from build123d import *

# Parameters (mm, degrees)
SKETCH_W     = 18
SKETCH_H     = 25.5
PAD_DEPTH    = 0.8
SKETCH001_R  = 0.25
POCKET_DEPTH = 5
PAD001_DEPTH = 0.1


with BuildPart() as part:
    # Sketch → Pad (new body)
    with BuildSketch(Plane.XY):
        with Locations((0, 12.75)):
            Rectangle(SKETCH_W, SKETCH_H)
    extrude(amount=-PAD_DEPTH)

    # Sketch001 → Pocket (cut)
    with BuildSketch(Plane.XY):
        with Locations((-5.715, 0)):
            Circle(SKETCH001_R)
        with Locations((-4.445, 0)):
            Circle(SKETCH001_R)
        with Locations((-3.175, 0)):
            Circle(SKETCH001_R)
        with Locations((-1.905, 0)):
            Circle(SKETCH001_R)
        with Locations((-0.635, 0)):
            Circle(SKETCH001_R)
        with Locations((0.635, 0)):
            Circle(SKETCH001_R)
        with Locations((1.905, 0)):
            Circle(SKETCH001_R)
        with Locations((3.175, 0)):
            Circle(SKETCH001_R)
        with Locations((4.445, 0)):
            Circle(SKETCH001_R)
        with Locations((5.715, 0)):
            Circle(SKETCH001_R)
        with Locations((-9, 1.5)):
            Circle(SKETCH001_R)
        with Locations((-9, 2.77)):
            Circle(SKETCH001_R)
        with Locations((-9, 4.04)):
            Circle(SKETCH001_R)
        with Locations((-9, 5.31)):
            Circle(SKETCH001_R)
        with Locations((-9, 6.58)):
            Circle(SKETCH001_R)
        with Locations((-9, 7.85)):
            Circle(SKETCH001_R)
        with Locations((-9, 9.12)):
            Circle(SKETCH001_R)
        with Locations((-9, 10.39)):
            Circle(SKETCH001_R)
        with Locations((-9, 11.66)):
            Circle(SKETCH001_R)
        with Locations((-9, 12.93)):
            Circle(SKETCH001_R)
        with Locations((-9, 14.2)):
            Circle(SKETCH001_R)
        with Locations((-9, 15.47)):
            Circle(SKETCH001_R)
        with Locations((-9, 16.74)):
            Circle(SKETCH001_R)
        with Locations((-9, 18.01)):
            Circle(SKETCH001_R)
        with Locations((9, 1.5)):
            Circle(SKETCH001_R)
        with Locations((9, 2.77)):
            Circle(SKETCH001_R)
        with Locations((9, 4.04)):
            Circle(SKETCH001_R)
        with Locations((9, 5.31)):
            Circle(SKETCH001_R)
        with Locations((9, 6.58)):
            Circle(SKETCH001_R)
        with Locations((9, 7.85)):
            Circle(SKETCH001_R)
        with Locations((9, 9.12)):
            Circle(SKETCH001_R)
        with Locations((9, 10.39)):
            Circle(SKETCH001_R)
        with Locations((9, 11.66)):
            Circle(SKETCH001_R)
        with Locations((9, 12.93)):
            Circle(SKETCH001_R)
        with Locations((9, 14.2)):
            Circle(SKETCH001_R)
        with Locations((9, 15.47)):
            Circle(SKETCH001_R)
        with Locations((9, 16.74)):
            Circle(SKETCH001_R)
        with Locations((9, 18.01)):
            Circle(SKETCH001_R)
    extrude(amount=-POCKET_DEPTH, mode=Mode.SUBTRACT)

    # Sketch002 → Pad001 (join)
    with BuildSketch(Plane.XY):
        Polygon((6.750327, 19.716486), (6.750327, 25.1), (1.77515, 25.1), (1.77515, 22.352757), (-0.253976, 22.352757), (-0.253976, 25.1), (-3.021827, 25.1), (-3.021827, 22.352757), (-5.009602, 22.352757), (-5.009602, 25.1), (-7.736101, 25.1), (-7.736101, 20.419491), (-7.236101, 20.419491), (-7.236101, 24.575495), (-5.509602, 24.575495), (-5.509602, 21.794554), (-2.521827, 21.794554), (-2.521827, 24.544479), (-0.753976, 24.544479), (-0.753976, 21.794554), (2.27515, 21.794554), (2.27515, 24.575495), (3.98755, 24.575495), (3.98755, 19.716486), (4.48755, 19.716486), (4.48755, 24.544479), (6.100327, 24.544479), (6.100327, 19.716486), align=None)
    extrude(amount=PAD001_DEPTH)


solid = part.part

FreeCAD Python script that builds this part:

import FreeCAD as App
import Part
import Sketcher
from FreeCAD import Vector
Q = App.Units.Quantity


def add_polygon(sketch, points):
    """Adds a closed chain of lines whose ends are joined by coincident constraints."""
    first, n = sketch.GeometryCount, len(points)
    for a, b in zip(points, points[1:] + points[:1]):
        sketch.addGeometry(Part.LineSegment(App.Vector(*a, 0), App.Vector(*b, 0)), False)
    for i in range(n):
        sketch.addConstraint(Sketcher.Constraint("Coincident", first + i, 2, first + (i + 1) % n, 1))

doc = App.newDocument("Part")
body = doc.addObject("PartDesign::Body", "Body")

sketch1 = body.newObject("Sketcher::SketchObject", "Sketch")
sketch1.AttachmentSupport = (doc.getObject("XY_Plane"), [""])
sketch1.MapMode = "FlatFace"
add_polygon(sketch1, [(-9, 26), (-9, 0), (9, 0), (9, 26)])
sketch1.addConstraint([
    Sketcher.Constraint("Vertical", 0),
    Sketcher.Constraint("Horizontal", 1),
    Sketcher.Constraint("Vertical", 2),
    Sketcher.Constraint("Horizontal", 3),
    Sketcher.Constraint("Symmetric", 0, 2, 1, 2, -1, 1),
    Sketcher.Constraint("DistanceX", 1, 1, 1, 2, Q("18 mm")),
    Sketcher.Constraint("DistanceY", 0, 2, 0, 1, Q("25.5 mm")),
])
pad1 = body.newObject("PartDesign::Pad", "Pad")
pad1.Profile = sketch1
pad1.Length = 0.8
pad1.Reversed = True

sketch2 = body.newObject("Sketcher::SketchObject", "Sketch001")
sketch2.AttachmentSupport = (doc.getObject("XY_Plane"), [""])
sketch2.MapMode = "FlatFace"
sketch2.addGeometry([
    Part.Circle(Vector(-5.71, 0, 0), Vector(0, 0, 1), 0.25),
    Part.Circle(Vector(-4.45, 0, 0), Vector(0, 0, 1), 0.25),
    Part.Circle(Vector(-3.17, 0, 0), Vector(0, 0, 1), 0.25),
    Part.Circle(Vector(-1.91, 0, 0), Vector(0, 0, 1), 0.25),
    Part.Circle(Vector(-0.64, 0, 0), Vector(0, 0, 1), 0.25),
    Part.Circle(Vector(0.64, 0, 0), Vector(0, 0, 1), 0.25),
    Part.Circle(Vector(1.91, 0, 0), Vector(0, 0, 1), 0.25),
    Part.Circle(Vector(3.17, 0, 0), Vector(0, 0, 1), 0.25),
    Part.Circle(Vector(4.45, 0, 0), Vector(0, 0, 1), 0.25),
    Part.Circle(Vector(5.71, 0, 0), Vector(0, 0, 1), 0.25),
    Part.Circle(Vector(-9, 1.5, 0), Vector(0, 0, 1), 0.25),
    Part.Circle(Vector(-9, 2.77, 0), Vector(0, 0, 1), 0.25),
    Part.Circle(Vector(-9, 4.04, 0), Vector(0, 0, 1), 0.25),
    Part.Circle(Vector(-9, 5.31, 0), Vector(0, 0, 1), 0.25),
    Part.Circle(Vector(-9, 6.58, 0), Vector(0, 0, 1), 0.25),
    Part.Circle(Vector(-9, 7.85, 0), Vector(0, 0, 1), 0.25),
    Part.Circle(Vector(-9, 9.12, 0), Vector(0, 0, 1), 0.25),
    Part.Circle(Vector(-9, 10.39, 0), Vector(0, 0, 1), 0.25),
    Part.Circle(Vector(-9, 11.66, 0), Vector(0, 0, 1), 0.25),
    Part.Circle(Vector(-9, 12.93, 0), Vector(0, 0, 1), 0.25),
    Part.Circle(Vector(-9, 14.2, 0), Vector(0, 0, 1), 0.25),
    Part.Circle(Vector(-9, 15.47, 0), Vector(0, 0, 1), 0.25),
    Part.Circle(Vector(-9, 16.74, 0), Vector(0, 0, 1), 0.25),
    Part.Circle(Vector(-9, 18.01, 0), Vector(0, 0, 1), 0.25),
    Part.Circle(Vector(9, 1.5, 0), Vector(0, 0, 1), 0.25),
    Part.Circle(Vector(9, 2.77, 0), Vector(0, 0, 1), 0.25),
    Part.Circle(Vector(9, 4.04, 0), Vector(0, 0, 1), 0.25),
    Part.Circle(Vector(9, 5.31, 0), Vector(0, 0, 1), 0.25),
    Part.Circle(Vector(9, 6.58, 0), Vector(0, 0, 1), 0.25),
    Part.Circle(Vector(9, 7.85, 0), Vector(0, 0, 1), 0.25),
    Part.Circle(Vector(9, 9.12, 0), Vector(0, 0, 1), 0.25),
    Part.Circle(Vector(9, 10.39, 0), Vector(0, 0, 1), 0.25),
    Part.Circle(Vector(9, 11.66, 0), Vector(0, 0, 1), 0.25),
    Part.Circle(Vector(9, 12.93, 0), Vector(0, 0, 1), 0.25),
    Part.Circle(Vector(9, 14.2, 0), Vector(0, 0, 1), 0.25),
    Part.Circle(Vector(9, 15.47, 0), Vector(0, 0, 1), 0.25),
    Part.Circle(Vector(9, 16.74, 0), Vector(0, 0, 1), 0.25),
    Part.Circle(Vector(9, 18.01, 0), Vector(0, 0, 1), 0.25),
], False)
sketch2.addConstraint([
    Sketcher.Constraint("Equal", 0, 1),
    Sketcher.Constraint("Equal", 1, 2),
    Sketcher.Constraint("Equal", 2, 3),
    Sketcher.Constraint("Equal", 3, 4),
    Sketcher.Constraint("Equal", 4, 5),
    Sketcher.Constraint("Equal", 5, 6),
    Sketcher.Constraint("Equal", 6, 7),
    Sketcher.Constraint("Equal", 7, 8),
    Sketcher.Constraint("Equal", 8, 9),
    Sketcher.Constraint("Equal", 9, 10),
    Sketcher.Constraint("Equal", 10, 11),
    Sketcher.Constraint("Equal", 11, 12),
    Sketcher.Constraint("Equal", 12, 13),
    Sketcher.Constraint("Equal", 13, 14),
    Sketcher.Constraint("Equal", 14, 15),
    Sketcher.Constraint("Equal", 15, 16),
    Sketcher.Constraint("Equal", 16, 17),
    Sketcher.Constraint("Equal", 17, 18),
    Sketcher.Constraint("Equal", 18, 19),
    Sketcher.Constraint("Equal", 19, 20),
    Sketcher.Constraint("Equal", 20, 21),
    Sketcher.Constraint("Equal", 21, 22),
    Sketcher.Constraint("Equal", 22, 23),
    Sketcher.Constraint("Equal", 23, 24),
    Sketcher.Constraint("Equal", 24, 25),
    Sketcher.Constraint("Equal", 25, 26),
    Sketcher.Constraint("Equal", 26, 27),
    Sketcher.Constraint("Equal", 27, 28),
    Sketcher.Constraint("Equal", 28, 29),
    Sketcher.Constraint("Equal", 29, 30),
    Sketcher.Constraint("Equal", 30, 31),
    Sketcher.Constraint("Equal", 31, 32),
    Sketcher.Constraint("Equal", 32, 33),
    Sketcher.Constraint("Equal", 33, 34),
    Sketcher.Constraint("Equal", 34, 35),
    Sketcher.Constraint("Equal", 35, 36),
    Sketcher.Constraint("Equal", 36, 37),
    Sketcher.Constraint("Symmetric", 4, 3, 5, 3, -1, 1),
    Sketcher.Constraint("Symmetric", 3, 3, 6, 3, -1, 1),
    Sketcher.Constraint("Symmetric", 2, 3, 7, 3, -1, 1),
    Sketcher.Constraint("Symmetric", 1, 3, 8, 3, -1, 1),
    Sketcher.Constraint("Symmetric", 0, 3, 9, 3, -1, 1),
    Sketcher.Constraint("Symmetric", 10, 3, 24, 3, -2),
    Sketcher.Constraint("Symmetric", 11, 3, 25, 3, -2),
    Sketcher.Constraint("Symmetric", 12, 3, 26, 3, -2),
    Sketcher.Constraint("Symmetric", 13, 3, 27, 3, -2),
    Sketcher.Constraint("Symmetric", 14, 3, 28, 3, -2),
    Sketcher.Constraint("Symmetric", 15, 3, 29, 3, -2),
    Sketcher.Constraint("Symmetric", 16, 3, 30, 3, -2),
    Sketcher.Constraint("Symmetric", 17, 3, 31, 3, -2),
    Sketcher.Constraint("Symmetric", 18, 3, 32, 3, -2),
    Sketcher.Constraint("Symmetric", 19, 3, 33, 3, -2),
    Sketcher.Constraint("Symmetric", 20, 3, 34, 3, -2),
    Sketcher.Constraint("Symmetric", 21, 3, 35, 3, -2),
    Sketcher.Constraint("Symmetric", 22, 3, 36, 3, -2),
    Sketcher.Constraint("Symmetric", 23, 3, 37, 3, -2),
    Sketcher.Constraint("PointOnObject", 0, 3, -1),
    Sketcher.Constraint("PointOnObject", 1, 3, -1),
    Sketcher.Constraint("PointOnObject", 2, 3, -1),
    Sketcher.Constraint("PointOnObject", 3, 3, -1),
    Sketcher.Constraint("PointOnObject", 4, 3, -1),
    Sketcher.Constraint("Vertical", 10, 3, 11, 3),
    Sketcher.Constraint("Vertical", 11, 3, 12, 3),
    Sketcher.Constraint("Vertical", 12, 3, 13, 3),
    Sketcher.Constraint("Vertical", 13, 3, 14, 3),
    Sketcher.Constraint("Vertical", 14, 3, 15, 3),
    Sketcher.Constraint("Vertical", 15, 3, 16, 3),
    Sketcher.Constraint("Vertical", 16, 3, 17, 3),
    Sketcher.Constraint("Vertical", 17, 3, 18, 3),
    Sketcher.Constraint("Vertical", 18, 3, 19, 3),
    Sketcher.Constraint("Vertical", 19, 3, 20, 3),
    Sketcher.Constraint("Vertical", 20, 3, 21, 3),
    Sketcher.Constraint("Vertical", 21, 3, 22, 3),
    Sketcher.Constraint("Vertical", 22, 3, 23, 3),
    Sketcher.Constraint("Diameter", 0, Q("0.5 mm")),
    Sketcher.Constraint("DistanceX", 10, 3, -1, 1, Q("9 mm")),
    Sketcher.Constraint("DistanceY", -1, 1, 10, 3, Q("1.5 mm")),
    Sketcher.Constraint("DistanceY", -1, 1, 20, 3, Q("14.2 mm")),
    Sketcher.Constraint("DistanceY", -1, 1, 11, 3, Q("2.77 mm")),
    Sketcher.Constraint("DistanceY", -1, 1, 12, 3, Q("4.04 mm")),
    Sketcher.Constraint("DistanceY", -1, 1, 13, 3, Q("5.31 mm")),
    Sketcher.Constraint("DistanceY", -1, 1, 14, 3, Q("6.58 mm")),
    Sketcher.Constraint("DistanceY", -1, 1, 15, 3, Q("7.85 mm")),
    Sketcher.Constraint("DistanceY", -1, 1, 16, 3, Q("9.12 mm")),
    Sketcher.Constraint("DistanceY", -1, 1, 17, 3, Q("10.39 mm")),
    Sketcher.Constraint("DistanceY", -1, 1, 18, 3, Q("11.66 mm")),
    Sketcher.Constraint("DistanceY", -1, 1, 19, 3, Q("12.93 mm")),
    Sketcher.Constraint("DistanceY", -1, 1, 21, 3, Q("15.47 mm")),
    Sketcher.Constraint("DistanceY", -1, 1, 22, 3, Q("16.74 mm")),
    Sketcher.Constraint("DistanceY", -1, 1, 23, 3, Q("18.01 mm")),
    Sketcher.Constraint("DistanceX", 0, 3, 1, 3, Q("1.27 mm")),
    Sketcher.Constraint("DistanceX", 1, 3, 2, 3, Q("1.27 mm")),
    Sketcher.Constraint("DistanceX", 2, 3, 3, 3, Q("1.27 mm")),
    Sketcher.Constraint("DistanceX", 3, 3, 4, 3, Q("1.27 mm")),
    Sketcher.Constraint("DistanceX", 4, 3, 5, 3, Q("1.27 mm")),
])
pocket1 = body.newObject("PartDesign::Pocket", "Pocket")
pocket1.Profile = sketch2
pocket1.Length = 5

sketch3 = body.newObject("Sketcher::SketchObject", "Sketch002")
sketch3.AttachmentSupport = (doc.getObject("XY_Plane"), [""])
sketch3.MapMode = "FlatFace"
add_polygon(sketch3, [(6.75, 19.72), (6.75, 25.1), (1.78, 25.1), (1.78, 22.35), (-0.25, 22.35), (-0.25, 25.1), (-3.02, 25.1), (-3.02, 22.35), (-5.01, 22.35), (-5.01, 25.1), (-7.74, 25.1), (-7.74, 20.42), (-7.24, 20.42), (-7.24, 24.58), (-5.51, 24.58), (-5.51, 21.79), (-2.52, 21.79), (-2.52, 24.54), (-0.75, 24.54), (-0.75, 21.79), (2.28, 21.79), (2.28, 24.58), (3.99, 24.58), (3.99, 19.72), (4.49, 19.72), (4.49, 24.54), (6.1, 24.54), (6.1, 19.72)])
sketch3.addConstraint([
    Sketcher.Constraint("Vertical", 0),
    Sketcher.Constraint("Horizontal", 1),
    Sketcher.Constraint("Vertical", 2),
    Sketcher.Constraint("Horizontal", 3),
    Sketcher.Constraint("Vertical", 4),
    Sketcher.Constraint("Horizontal", 5),
    Sketcher.Constraint("Vertical", 6),
    Sketcher.Constraint("Horizontal", 7),
    Sketcher.Constraint("Vertical", 8),
    Sketcher.Constraint("Horizontal", 9),
    Sketcher.Constraint("Vertical", 10),
    Sketcher.Constraint("Horizontal", 11),
    Sketcher.Constraint("Vertical", 12),
    Sketcher.Constraint("Horizontal", 13),
    Sketcher.Constraint("Vertical", 14),
    Sketcher.Constraint("Horizontal", 15),
    Sketcher.Constraint("Vertical", 16),
    Sketcher.Constraint("Horizontal", 17),
    Sketcher.Constraint("Vertical", 18),
    Sketcher.Constraint("Horizontal", 19),
    Sketcher.Constraint("Vertical", 20),
    Sketcher.Constraint("Horizontal", 21),
    Sketcher.Constraint("Vertical", 22),
    Sketcher.Constraint("Horizontal", 23),
    Sketcher.Constraint("Vertical", 24),
    Sketcher.Constraint("Horizontal", 25),
    Sketcher.Constraint("Vertical", 26),
    Sketcher.Constraint("Horizontal", 27),
    Sketcher.Constraint("Horizontal", 1, 2, 4, 2),
    Sketcher.Constraint("Horizontal", 3, 2, 6, 2),
    Sketcher.Constraint("Horizontal", 5, 2, 8, 2),
    Sketcher.Constraint("Horizontal", 15, 2, 18, 2),
    Sketcher.Constraint("Horizontal", 13, 2, 20, 2),
    Sketcher.Constraint("Horizontal", 17, 2, 24, 2),
    Sketcher.Constraint("Horizontal", 23, 2, 26, 2),
    Sketcher.Constraint("Equal", 11, 23),
    Sketcher.Constraint("DistanceX", 11, 1, 11, 2, Q("0.5 mm")),
    Sketcher.Constraint("DistanceX", 27, 1, 27, 2, Q("0.65 mm")),
    Sketcher.Constraint("DistanceY", -1, 1, 0, 2, Q("25.1 mm")),
    Sketcher.Constraint("DistanceX", 13, 2, 8, 2, Q("0.5 mm")),
    Sketcher.Constraint("DistanceX", 6, 2, 15, 2, Q("0.5 mm")),
    Sketcher.Constraint("DistanceX", 17, 2, 4, 2, Q("0.5 mm")),
    Sketcher.Constraint("DistanceX", 2, 2, 19, 2, Q("0.5 mm")),
    Sketcher.Constraint("DistanceX", 9, 2, 9, 1, Q("2.726499 mm")),
    Sketcher.Constraint("DistanceX", 21, 1, 21, 2, Q("1.7124 mm")),
    Sketcher.Constraint("DistanceX", 5, 2, 5, 1, Q("2.767851 mm")),
    Sketcher.Constraint("DistanceY", 10, 2, 10, 1, Q("4.680509 mm")),
    Sketcher.Constraint("DistanceY", 14, 2, 14, 1, Q("2.780941 mm")),
    Sketcher.Constraint("DistanceY", 22, 2, 22, 1, Q("4.859009 mm")),
    Sketcher.Constraint("DistanceX", 9, 2, -1, 1, Q("7.736101 mm")),
    Sketcher.Constraint("DistanceX", 1, 2, 1, 1, Q("4.975177 mm")),
    Sketcher.Constraint("DistanceX", 3, 2, 3, 1, Q("2.029126 mm")),
    Sketcher.Constraint("DistanceX", 7, 2, 7, 1, Q("1.987775 mm")),
    Sketcher.Constraint("DistanceY", 0, 1, 0, 2, Q("5.383514 mm")),
    Sketcher.Constraint("DistanceY", 2, 2, 2, 1, Q("2.747243 mm")),
    Sketcher.Constraint("DistanceY", 16, 1, 16, 2, Q("2.749925 mm")),
])
pad2 = body.newObject("PartDesign::Pad", "Pad001")
pad2.Profile = sketch3
pad2.Length = 0.1

doc.recompute()
